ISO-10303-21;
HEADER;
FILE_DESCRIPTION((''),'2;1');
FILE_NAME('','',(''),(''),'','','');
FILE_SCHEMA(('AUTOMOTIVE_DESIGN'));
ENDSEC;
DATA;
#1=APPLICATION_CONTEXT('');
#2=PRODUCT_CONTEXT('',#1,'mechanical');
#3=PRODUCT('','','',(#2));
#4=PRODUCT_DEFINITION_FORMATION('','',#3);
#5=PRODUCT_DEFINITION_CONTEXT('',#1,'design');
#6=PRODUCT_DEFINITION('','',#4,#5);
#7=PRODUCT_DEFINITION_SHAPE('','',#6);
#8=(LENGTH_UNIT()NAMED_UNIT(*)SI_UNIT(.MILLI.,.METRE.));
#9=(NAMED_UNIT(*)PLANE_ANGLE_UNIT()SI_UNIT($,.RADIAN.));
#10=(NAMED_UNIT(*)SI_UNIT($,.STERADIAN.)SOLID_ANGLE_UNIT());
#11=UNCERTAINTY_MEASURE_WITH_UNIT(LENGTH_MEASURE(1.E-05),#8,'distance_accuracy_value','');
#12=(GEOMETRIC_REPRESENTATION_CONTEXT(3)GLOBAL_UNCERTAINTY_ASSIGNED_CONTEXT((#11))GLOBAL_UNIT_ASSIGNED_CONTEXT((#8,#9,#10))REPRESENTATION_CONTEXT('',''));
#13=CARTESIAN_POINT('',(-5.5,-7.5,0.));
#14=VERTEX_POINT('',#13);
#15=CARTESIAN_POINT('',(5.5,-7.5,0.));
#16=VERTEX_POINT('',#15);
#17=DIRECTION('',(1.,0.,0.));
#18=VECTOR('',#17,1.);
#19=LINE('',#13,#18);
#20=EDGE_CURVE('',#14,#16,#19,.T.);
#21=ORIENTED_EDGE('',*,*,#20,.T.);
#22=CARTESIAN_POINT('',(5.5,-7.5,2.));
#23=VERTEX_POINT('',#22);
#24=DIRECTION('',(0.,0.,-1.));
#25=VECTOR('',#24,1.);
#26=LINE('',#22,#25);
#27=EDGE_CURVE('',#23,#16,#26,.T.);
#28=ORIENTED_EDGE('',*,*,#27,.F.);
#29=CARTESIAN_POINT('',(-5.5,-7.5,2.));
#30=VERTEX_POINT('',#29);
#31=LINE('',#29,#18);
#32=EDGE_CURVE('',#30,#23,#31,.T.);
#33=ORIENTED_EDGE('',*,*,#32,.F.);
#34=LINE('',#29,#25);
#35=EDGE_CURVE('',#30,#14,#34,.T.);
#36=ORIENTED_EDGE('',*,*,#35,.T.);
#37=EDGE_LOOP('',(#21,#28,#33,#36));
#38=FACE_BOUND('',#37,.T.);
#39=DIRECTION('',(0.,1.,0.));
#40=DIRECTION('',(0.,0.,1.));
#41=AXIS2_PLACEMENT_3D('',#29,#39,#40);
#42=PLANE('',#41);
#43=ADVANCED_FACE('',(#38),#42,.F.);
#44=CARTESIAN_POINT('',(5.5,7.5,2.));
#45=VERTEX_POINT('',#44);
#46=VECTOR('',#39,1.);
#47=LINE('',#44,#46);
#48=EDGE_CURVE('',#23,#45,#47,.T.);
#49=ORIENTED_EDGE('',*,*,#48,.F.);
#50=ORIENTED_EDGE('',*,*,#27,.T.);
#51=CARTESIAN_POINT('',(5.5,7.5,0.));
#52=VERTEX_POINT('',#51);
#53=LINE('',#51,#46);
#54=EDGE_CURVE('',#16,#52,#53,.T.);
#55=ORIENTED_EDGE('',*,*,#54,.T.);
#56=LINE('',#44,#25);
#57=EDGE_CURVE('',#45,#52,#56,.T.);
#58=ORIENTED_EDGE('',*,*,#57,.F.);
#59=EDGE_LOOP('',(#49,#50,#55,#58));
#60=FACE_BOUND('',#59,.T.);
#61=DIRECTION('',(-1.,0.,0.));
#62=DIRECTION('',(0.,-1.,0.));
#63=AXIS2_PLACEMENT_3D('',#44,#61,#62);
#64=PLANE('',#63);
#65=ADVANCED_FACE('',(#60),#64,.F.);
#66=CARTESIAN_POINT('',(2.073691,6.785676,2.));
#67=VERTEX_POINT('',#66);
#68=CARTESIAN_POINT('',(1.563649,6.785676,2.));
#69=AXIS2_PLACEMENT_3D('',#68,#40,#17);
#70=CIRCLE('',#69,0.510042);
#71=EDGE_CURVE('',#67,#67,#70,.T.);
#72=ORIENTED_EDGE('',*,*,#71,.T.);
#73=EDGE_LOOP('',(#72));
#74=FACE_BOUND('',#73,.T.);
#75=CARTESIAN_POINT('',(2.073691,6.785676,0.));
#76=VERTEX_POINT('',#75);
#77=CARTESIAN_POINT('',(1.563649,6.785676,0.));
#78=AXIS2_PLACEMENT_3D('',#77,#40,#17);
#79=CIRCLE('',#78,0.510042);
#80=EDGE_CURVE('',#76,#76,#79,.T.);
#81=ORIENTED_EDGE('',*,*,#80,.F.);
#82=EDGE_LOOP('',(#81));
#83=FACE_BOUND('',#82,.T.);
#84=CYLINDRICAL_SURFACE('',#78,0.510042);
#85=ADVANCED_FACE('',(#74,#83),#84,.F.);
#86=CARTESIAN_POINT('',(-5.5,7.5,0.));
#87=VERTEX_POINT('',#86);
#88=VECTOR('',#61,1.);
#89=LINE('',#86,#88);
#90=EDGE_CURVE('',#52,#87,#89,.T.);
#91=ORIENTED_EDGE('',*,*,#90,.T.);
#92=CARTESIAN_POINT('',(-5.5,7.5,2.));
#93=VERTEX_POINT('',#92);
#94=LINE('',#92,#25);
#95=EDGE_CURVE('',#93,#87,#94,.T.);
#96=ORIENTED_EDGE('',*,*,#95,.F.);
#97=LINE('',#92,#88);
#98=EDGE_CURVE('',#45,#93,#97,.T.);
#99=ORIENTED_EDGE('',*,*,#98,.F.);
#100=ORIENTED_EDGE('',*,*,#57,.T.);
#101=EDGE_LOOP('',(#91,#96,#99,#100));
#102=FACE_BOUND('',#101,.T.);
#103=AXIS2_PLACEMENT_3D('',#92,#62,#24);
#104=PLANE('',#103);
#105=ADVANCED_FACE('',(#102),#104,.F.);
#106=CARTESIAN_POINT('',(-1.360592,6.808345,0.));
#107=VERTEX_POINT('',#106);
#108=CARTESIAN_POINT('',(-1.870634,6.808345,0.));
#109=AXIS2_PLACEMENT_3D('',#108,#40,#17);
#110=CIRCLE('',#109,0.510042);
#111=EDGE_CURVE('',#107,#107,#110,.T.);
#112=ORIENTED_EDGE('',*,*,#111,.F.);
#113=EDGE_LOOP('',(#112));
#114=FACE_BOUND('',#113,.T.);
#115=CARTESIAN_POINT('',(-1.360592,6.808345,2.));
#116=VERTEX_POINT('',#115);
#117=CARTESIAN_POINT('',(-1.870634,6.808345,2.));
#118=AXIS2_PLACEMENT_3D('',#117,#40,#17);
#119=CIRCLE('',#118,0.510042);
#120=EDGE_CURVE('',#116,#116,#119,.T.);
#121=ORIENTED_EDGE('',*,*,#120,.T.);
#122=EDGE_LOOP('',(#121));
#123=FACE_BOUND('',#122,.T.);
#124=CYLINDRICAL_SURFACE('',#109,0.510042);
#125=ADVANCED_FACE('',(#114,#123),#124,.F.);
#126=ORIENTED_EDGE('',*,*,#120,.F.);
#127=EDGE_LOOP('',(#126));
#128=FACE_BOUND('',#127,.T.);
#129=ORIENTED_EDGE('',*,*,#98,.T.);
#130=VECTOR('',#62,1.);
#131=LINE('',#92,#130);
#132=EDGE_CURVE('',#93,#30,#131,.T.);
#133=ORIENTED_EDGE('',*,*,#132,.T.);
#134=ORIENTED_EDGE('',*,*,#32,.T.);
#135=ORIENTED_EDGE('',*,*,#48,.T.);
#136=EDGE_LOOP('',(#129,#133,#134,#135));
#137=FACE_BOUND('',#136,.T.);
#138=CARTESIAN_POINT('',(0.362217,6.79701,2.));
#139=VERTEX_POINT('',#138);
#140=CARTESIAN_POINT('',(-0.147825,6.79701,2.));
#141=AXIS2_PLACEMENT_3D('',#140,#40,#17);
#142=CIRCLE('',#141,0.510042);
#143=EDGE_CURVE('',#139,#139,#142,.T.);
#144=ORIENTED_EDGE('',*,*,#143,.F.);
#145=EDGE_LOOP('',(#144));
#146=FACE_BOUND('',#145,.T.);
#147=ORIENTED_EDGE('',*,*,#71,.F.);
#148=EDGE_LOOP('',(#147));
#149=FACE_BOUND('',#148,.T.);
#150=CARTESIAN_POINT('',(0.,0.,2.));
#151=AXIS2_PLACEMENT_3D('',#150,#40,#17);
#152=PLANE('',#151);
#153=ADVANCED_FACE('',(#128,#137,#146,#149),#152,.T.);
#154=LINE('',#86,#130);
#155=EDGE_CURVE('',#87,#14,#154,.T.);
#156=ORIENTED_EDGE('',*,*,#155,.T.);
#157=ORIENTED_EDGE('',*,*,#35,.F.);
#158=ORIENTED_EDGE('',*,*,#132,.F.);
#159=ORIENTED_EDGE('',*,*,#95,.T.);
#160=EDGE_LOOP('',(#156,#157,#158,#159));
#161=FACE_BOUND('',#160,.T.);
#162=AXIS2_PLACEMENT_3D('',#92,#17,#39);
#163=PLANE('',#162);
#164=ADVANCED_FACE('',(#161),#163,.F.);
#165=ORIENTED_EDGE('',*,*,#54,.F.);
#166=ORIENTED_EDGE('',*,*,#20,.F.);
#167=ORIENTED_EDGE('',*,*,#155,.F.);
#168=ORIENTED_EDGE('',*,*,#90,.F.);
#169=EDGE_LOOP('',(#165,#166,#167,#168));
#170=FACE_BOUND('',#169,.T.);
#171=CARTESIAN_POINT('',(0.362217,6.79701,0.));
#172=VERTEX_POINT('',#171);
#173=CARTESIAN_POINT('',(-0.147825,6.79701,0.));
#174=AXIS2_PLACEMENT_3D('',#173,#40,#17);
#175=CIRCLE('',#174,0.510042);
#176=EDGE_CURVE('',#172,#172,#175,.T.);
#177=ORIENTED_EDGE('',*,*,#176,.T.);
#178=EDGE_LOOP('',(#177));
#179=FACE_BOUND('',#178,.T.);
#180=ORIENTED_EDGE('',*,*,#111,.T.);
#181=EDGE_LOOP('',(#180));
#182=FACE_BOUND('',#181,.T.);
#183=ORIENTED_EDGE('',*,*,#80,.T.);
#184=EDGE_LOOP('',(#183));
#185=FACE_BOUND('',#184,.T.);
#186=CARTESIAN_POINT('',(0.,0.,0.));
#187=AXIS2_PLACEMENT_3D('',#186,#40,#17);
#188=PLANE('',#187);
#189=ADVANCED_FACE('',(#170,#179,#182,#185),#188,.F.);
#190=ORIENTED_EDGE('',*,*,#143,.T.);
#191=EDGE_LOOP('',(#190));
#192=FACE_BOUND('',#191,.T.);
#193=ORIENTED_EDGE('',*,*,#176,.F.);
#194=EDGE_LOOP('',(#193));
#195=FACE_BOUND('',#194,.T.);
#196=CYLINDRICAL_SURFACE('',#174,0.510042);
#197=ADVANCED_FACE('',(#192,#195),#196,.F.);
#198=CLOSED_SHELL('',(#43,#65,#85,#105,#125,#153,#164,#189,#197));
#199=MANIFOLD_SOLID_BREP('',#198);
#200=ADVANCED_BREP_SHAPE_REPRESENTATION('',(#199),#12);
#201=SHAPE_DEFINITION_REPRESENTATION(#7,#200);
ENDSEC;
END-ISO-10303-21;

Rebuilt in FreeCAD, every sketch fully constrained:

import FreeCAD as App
import Part
import Sketcher
from FreeCAD import Vector
Q = App.Units.Quantity


def add_polygon(sketch, points):
    """Adds a closed chain of lines whose ends are joined by coincident constraints."""
    first, n = sketch.GeometryCount, len(points)
    for a, b in zip(points, points[1:] + points[:1]):
        sketch.addGeometry(Part.LineSegment(App.Vector(*a, 0), App.Vector(*b, 0)), False)
    for i in range(n):
        sketch.addConstraint(Sketcher.Constraint("Coincident", first + i, 2, first + (i + 1) % n, 1))

doc = App.newDocument("Part")
body = doc.addObject("PartDesign::Body", "Body")

# Sketch on XY plane
sketch1 = doc.addObject("Sketcher::SketchObject", "Sketch")
body.addObject(sketch1)
sketch1.AttachmentSupport = (doc.XY_Plane, [""])
sketch1.MapMode = "FlatFace"
add_polygon(sketch1, [(-6, 8), (-6, -8), (6, -8), (6, 8)])  # lines 0-3
sketch1.addConstraint([
    Sketcher.Constraint("Vertical", 0),
    Sketcher.Constraint("Horizontal", 1),
    Sketcher.Constraint("Vertical", 2),
    Sketcher.Constraint("Horizontal", 3),
    Sketcher.Constraint("Symmetric", 0, 2, 2, 2, -1, 1),
    Sketcher.Constraint("DistanceX", 1, 1, 1, 2, Q("11 mm")),
    Sketcher.Constraint("DistanceY", 0, 2, 0, 1, Q("15 mm")),
])
pad1 = doc.addObject("PartDesign::Pad", "Pad")
body.addObject(pad1)
pad1.Profile = sketch1
pad1.Length = 2

# Sketch on XY plane
sketch2 = doc.addObject("Sketcher::SketchObject", "Sketch001")
body.addObject(sketch2)
sketch2.AttachmentSupport = (doc.XY_Plane, [""])
sketch2.MapMode = "FlatFace"
sketch2.AttachmentOffset = App.Placement(Vector(0, 0, 2), App.Rotation())
sketch2.addGeometry([
    Part.Circle(Vector(-1.9, 6.8, 0), Vector(0, 0, 1), 0.5),
    Part.Circle(Vector(-0.1, 6.8, 0), Vector(0, 0, 1), 0.5),
    Part.Circle(Vector(1.6, 6.8, 0), Vector(0, 0, 1), 0.5),
], False)
sketch2.addConstraint([
    Sketcher.Constraint("Equal", 0, 1),
    Sketcher.Constraint("Equal", 1, 2),
    Sketcher.Constraint("Diameter", 0, Q("1.020084 mm")),
    Sketcher.Constraint("DistanceY", -1, 1, 1, 3, Q("6.79701 mm")),
    Sketcher.Constraint("DistanceX", -1, 1, 2, 3, Q("1.563649 mm")),
    Sketcher.Constraint("DistanceX", 0, 3, 1, 3, Q("1.722808 mm")),
    Sketcher.Constraint("DistanceY", 2, 3, 0, 3, Q("0.022669 mm")),
    Sketcher.Constraint("DistanceX", 0, 3, -1, 1, Q("1.870634 mm")),
    Sketcher.Constraint("DistanceY", -1, 1, 0, 3, Q("6.808345 mm")),
])
pocket1 = doc.addObject("PartDesign::Pocket", "Pocket")
body.addObject(pocket1)
pocket1.Profile = sketch2
pocket1.Type = "ThroughAll"

doc.recompute()
